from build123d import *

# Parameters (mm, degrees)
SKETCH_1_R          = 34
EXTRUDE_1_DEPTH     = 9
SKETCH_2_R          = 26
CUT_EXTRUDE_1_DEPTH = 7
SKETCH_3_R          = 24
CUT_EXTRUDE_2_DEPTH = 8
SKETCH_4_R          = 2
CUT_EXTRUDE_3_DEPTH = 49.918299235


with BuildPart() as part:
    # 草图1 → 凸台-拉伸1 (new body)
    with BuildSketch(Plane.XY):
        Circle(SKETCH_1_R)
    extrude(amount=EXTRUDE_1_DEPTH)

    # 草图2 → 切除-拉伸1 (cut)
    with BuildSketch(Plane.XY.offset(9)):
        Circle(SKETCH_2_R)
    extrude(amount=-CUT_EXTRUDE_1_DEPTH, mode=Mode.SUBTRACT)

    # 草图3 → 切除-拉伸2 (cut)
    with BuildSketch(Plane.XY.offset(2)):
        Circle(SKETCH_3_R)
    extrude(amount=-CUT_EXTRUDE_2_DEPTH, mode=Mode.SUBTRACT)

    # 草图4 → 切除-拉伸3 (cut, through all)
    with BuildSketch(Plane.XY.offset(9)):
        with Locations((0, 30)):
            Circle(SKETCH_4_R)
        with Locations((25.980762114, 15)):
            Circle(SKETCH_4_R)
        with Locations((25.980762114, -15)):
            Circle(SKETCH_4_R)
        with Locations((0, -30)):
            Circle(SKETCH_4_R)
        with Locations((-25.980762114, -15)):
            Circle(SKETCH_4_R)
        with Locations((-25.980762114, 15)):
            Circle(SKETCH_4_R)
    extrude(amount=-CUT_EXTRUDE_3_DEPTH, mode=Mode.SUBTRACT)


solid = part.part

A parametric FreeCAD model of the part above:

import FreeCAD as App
import Part
import Sketcher
Q = App.Units.Quantity

doc = App.newDocument("Part")
body = doc.addObject("PartDesign::Body", "Body")

# Sketch on XY plane
sketch1 = doc.addObject("Sketcher::SketchObject", "Sketch")
body.addObject(sketch1)
sketch1.AttachmentSupport = (doc.XY_Plane, [""])
sketch1.MapMode = "FlatFace"
sketch1.addGeometry(Part.Circle(App.Vector(0, 0, 0), App.Vector(0, 0, 1), 34), False)
sketch1.addConstraint(Sketcher.Constraint("Coincident", 0, 3, -1, 1))
sketch1.addConstraint(Sketcher.Constraint("Diameter", 0, Q("68 mm")))
pad1 = doc.addObject("PartDesign::Pad", "Pad")
body.addObject(pad1)
pad1.Profile = sketch1
pad1.Length = 9

# Sketch on XY plane
sketch2 = doc.addObject("Sketcher::SketchObject", "Sketch001")
body.addObject(sketch2)
sketch2.AttachmentSupport = (doc.XY_Plane, [""])
sketch2.MapMode = "FlatFace"
sketch2.AttachmentOffset = App.Placement(App.Vector(0, 0, 9), App.Rotation())
sketch2.addGeometry(Part.Circle(App.Vector(0, 0, 0), App.Vector(0, 0, 1), 26), False)
sketch2.addConstraint(Sketcher.Constraint("Coincident", 0, 3, -1, 1))
sketch2.addConstraint(Sketcher.Constraint("Diameter", 0, Q("52 mm")))
pocket1 = doc.addObject("PartDesign::Pocket", "Pocket")
body.addObject(pocket1)
pocket1.Profile = sketch2
pocket1.Length = 7

# Sketch on XY plane
sketch3 = doc.addObject("Sketcher::SketchObject", "Sketch002")
body.addObject(sketch3)
sketch3.AttachmentSupport = (doc.XY_Plane, [""])
sketch3.MapMode = "FlatFace"
sketch3.AttachmentOffset = App.Placement(App.Vector(0, 0, 2), App.Rotation())
sketch3.addGeometry(Part.Circle(App.Vector(0, 0, 0), App.Vector(0, 0, 1), 24), False)
sketch3.addConstraint(Sketcher.Constraint("Coincident", 0, 3, -1, 1))
sketch3.addConstraint(Sketcher.Constraint("Diameter", 0, Q("48 mm")))
pocket2 = doc.addObject("PartDesign::Pocket", "Pocket001")
body.addObject(pocket2)
pocket2.Profile = sketch3
pocket2.Length = 8

# Sketch on XY plane
sketch4 = doc.addObject("Sketcher::SketchObject", "Sketch003")
body.addObject(sketch4)
sketch4.AttachmentSupport = (doc.XY_Plane, [""])
sketch4.MapMode = "FlatFace"
sketch4.AttachmentOffset = App.Placement(App.Vector(0, 0, 9), App.Rotation())
sketch4.addGeometry(Part.Circle(App.Vector(0, 30, 0), App.Vector(0, 0, 1), 2), False)
sketch4.addGeometry(Part.Circle(App.Vector(26, 15, 0), App.Vector(0, 0, 1), 2), False)
sketch4.addGeometry(Part.Circle(App.Vector(26, -15, 0), App.Vector(0, 0, 1), 2), False)
sketch4.addGeometry(Part.Circle(App.Vector(0, -30, 0), App.Vector(0, 0, 1), 2), False)
sketch4.addGeometry(Part.Circle(App.Vector(-26, -15, 0), App.Vector(0, 0, 1), 2), False)
sketch4.addGeometry(Part.Circle(App.Vector(-26, 15, 0), App.Vector(0, 0, 1), 2), False)
sketch4.addConstraint(Sketcher.Constraint("Equal", 0, 1))
sketch4.addConstraint(Sketcher.Constraint("Equal", 1, 2))
sketch4.addConstraint(Sketcher.Constraint("Equal", 2, 3))
sketch4.addConstraint(Sketcher.Constraint("Equal", 3, 4))
sketch4.addConstraint(Sketcher.Constraint("Equal", 4, 5))
sketch4.addConstraint(Sketcher.Constraint("Symmetric", 0, 3, 3, 3, -1, 1))
sketch4.addConstraint(Sketcher.Constraint("Symmetric", 1, 3, 4, 3, -1, 1))
sketch4.addConstraint(Sketcher.Constraint("Symmetric", 2, 3, 5, 3, -1, 1))
sketch4.addConstraint(Sketcher.Constraint("Symmetric", 2, 3, 4, 3, -2))
sketch4.addConstraint(Sketcher.Constraint("PointOnObject", 0, 3, -2))
sketch4.addConstraint(Sketcher.Constraint("Diameter", 0, Q("4 mm")))
sketch4.addConstraint(Sketcher.Constraint("DistanceY", -1, 1, 0, 3, Q("30 mm")))
sketch4.addConstraint(Sketcher.Constraint("DistanceY", -1, 1, 1, 3, Q("15 mm")))
sketch4.addConstraint(Sketcher.Constraint("DistanceX", -1, 1, 1, 3, Q("25.980762 mm")))
pocket3 = doc.addObject("PartDesign::Pocket", "Pocket002")
body.addObject(pocket3)
pocket3.Profile = sketch4
pocket3.Type = "ThroughAll"

doc.recompute()
